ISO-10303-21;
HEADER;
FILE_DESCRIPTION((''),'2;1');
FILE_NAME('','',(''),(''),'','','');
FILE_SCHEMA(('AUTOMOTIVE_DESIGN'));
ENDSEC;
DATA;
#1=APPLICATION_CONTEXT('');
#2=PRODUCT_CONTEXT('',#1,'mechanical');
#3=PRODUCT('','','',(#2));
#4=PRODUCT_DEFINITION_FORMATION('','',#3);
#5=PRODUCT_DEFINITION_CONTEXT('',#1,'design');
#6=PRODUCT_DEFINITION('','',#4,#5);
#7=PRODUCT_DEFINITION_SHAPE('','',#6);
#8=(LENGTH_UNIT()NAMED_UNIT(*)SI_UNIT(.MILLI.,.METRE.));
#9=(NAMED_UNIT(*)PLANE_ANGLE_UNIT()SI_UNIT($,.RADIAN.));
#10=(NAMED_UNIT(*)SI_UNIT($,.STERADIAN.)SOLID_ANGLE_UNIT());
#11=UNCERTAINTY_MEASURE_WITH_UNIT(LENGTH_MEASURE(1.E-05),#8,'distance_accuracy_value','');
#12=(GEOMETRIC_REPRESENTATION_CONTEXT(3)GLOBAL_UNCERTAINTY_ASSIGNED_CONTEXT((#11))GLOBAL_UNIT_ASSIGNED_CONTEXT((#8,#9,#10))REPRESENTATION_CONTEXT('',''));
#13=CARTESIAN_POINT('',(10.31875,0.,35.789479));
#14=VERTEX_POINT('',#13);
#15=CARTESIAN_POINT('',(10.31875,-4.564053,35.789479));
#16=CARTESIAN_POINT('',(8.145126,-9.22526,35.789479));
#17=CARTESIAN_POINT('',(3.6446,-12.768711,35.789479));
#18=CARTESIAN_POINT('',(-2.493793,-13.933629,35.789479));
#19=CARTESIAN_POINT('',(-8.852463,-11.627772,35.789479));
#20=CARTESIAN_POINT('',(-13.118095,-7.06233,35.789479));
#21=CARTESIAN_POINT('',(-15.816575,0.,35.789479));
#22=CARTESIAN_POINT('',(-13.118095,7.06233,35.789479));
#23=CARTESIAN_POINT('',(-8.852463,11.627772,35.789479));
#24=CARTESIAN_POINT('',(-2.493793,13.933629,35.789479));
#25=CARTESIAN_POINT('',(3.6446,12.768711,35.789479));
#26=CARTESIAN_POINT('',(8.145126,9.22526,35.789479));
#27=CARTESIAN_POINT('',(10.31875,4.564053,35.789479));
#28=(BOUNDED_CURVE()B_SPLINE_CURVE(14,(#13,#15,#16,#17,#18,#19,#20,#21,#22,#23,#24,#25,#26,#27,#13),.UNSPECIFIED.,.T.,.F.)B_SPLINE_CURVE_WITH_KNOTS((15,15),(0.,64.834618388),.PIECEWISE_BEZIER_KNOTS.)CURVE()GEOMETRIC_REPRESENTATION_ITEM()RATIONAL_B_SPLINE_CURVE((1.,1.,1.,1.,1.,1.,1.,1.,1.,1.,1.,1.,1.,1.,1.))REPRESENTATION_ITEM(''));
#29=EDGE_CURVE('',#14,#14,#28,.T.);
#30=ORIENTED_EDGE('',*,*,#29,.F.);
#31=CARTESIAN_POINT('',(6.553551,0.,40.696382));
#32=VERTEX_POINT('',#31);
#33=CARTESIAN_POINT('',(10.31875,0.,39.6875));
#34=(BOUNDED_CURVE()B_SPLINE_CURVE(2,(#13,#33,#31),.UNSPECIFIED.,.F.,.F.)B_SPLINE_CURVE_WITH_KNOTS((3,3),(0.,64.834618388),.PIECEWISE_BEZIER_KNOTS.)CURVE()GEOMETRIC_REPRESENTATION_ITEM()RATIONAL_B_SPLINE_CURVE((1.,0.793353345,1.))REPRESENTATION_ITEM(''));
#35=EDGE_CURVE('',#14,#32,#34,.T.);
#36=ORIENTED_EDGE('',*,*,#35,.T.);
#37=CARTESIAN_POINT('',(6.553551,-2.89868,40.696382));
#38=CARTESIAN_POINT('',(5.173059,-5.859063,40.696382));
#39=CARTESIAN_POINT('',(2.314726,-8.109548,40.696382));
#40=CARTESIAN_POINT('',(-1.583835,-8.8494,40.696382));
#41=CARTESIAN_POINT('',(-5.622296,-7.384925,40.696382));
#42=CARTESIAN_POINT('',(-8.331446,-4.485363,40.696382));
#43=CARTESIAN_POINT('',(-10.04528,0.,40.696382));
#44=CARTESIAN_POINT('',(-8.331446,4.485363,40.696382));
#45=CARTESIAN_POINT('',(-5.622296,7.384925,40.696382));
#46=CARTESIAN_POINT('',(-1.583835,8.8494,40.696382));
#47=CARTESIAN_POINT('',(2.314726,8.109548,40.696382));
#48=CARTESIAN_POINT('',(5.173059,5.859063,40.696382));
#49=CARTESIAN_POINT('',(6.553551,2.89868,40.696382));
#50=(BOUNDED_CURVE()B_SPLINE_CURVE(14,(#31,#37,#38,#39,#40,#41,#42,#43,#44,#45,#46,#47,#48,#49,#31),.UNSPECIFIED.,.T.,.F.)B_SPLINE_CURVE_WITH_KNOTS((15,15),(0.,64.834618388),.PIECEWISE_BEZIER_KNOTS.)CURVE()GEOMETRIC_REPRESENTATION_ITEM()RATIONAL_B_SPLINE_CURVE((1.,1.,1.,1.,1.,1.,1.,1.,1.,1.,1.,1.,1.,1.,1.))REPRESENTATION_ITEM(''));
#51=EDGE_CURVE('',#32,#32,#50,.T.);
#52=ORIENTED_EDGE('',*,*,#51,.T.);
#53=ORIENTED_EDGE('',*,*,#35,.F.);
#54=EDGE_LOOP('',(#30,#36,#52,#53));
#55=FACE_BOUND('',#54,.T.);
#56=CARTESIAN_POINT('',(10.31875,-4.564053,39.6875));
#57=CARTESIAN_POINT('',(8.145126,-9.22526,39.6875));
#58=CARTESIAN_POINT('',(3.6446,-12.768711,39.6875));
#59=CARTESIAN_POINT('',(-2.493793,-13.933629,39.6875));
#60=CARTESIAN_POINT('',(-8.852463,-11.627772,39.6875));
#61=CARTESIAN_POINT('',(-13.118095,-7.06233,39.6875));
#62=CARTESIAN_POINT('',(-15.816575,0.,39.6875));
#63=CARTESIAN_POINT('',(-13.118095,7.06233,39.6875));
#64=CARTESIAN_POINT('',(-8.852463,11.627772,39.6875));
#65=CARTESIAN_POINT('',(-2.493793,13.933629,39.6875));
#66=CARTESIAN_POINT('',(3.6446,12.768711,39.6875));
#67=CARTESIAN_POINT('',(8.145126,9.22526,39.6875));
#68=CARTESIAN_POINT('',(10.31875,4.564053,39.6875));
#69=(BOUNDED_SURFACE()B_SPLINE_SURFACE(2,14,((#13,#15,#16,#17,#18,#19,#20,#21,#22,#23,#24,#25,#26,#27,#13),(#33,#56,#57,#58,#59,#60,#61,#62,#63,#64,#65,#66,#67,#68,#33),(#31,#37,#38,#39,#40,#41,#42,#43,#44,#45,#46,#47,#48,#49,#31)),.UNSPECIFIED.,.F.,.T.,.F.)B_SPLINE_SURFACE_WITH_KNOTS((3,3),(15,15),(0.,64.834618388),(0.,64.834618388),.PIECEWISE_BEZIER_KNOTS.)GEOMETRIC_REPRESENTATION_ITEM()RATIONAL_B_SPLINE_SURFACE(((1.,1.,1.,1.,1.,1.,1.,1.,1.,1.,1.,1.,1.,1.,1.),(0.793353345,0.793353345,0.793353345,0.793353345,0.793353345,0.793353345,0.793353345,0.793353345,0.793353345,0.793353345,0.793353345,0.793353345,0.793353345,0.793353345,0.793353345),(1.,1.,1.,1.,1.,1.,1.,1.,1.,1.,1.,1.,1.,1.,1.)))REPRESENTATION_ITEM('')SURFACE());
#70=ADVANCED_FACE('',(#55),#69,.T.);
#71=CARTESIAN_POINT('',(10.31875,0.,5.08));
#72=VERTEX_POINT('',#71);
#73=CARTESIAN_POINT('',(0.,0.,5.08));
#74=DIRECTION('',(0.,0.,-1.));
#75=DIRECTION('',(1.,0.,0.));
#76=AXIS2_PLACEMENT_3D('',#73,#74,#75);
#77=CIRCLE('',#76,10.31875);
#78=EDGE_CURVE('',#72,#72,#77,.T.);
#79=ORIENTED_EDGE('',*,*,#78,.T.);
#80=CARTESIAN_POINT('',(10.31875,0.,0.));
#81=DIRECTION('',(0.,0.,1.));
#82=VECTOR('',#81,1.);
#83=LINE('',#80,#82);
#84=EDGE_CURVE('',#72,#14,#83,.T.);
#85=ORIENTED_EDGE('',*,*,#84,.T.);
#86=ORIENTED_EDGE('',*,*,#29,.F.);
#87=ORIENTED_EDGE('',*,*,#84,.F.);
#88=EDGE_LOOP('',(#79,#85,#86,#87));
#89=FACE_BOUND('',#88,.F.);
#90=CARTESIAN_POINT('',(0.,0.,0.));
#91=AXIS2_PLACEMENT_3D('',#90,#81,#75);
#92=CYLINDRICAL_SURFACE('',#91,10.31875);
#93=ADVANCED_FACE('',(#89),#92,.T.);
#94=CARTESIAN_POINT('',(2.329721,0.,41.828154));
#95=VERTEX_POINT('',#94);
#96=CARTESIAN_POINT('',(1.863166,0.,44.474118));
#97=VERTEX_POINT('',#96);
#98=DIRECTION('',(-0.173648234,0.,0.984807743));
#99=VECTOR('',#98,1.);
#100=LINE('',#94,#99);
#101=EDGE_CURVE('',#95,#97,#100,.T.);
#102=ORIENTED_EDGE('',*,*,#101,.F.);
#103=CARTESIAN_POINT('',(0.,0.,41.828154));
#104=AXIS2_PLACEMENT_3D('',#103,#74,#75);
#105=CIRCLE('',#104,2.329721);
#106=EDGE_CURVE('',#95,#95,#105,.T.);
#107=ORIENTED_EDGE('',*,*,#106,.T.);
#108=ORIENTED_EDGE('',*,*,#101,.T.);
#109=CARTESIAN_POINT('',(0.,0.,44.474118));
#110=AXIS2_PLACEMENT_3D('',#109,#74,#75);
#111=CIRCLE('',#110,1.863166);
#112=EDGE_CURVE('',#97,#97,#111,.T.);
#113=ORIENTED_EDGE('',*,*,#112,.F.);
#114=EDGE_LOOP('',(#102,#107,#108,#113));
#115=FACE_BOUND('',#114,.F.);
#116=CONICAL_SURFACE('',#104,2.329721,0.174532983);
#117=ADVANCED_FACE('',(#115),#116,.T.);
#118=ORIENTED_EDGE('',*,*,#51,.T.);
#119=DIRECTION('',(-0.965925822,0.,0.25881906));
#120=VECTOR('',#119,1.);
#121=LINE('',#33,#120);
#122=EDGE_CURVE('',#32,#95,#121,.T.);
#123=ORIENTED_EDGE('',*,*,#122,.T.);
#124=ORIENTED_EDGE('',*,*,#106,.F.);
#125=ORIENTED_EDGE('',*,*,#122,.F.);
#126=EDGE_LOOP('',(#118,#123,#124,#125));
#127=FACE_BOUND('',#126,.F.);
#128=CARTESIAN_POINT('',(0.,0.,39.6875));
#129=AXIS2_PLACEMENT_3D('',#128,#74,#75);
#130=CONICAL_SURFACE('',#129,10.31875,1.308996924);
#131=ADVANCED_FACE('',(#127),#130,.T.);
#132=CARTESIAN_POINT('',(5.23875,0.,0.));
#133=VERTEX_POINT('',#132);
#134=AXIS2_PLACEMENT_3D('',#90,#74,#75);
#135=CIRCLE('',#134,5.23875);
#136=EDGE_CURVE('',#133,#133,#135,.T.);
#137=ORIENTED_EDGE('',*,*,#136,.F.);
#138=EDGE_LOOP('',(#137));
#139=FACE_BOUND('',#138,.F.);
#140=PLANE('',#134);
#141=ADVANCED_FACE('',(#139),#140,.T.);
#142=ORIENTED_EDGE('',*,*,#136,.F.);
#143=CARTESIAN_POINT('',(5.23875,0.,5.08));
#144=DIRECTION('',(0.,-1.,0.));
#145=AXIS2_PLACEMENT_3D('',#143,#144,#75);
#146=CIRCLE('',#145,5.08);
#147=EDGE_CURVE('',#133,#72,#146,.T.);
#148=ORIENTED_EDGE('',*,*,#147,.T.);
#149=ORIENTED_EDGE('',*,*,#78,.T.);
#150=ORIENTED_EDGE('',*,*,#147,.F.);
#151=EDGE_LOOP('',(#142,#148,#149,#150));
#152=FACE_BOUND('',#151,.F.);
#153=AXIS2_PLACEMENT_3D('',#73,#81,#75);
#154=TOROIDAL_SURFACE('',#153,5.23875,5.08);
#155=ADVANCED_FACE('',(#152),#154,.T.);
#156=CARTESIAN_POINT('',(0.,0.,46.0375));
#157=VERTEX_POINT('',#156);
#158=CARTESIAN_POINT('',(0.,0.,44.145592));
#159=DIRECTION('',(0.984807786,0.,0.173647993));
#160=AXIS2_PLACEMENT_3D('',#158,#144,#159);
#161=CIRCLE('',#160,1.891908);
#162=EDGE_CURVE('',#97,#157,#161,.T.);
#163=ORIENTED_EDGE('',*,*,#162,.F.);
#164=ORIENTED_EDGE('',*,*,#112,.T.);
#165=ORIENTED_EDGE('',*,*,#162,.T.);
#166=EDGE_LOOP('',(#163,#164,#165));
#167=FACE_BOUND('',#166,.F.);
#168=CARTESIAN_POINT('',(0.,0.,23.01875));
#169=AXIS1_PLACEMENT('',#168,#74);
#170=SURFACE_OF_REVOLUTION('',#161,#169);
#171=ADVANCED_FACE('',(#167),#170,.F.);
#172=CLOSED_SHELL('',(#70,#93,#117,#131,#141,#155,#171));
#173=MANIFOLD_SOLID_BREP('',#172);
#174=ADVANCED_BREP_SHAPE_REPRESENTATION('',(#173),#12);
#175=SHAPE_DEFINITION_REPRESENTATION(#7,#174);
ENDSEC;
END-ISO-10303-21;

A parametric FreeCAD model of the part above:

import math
import FreeCAD as App
import Part
import Sketcher

V = App.Vector
Q = App.Units.Quantity


def edges_at(feature, points):
    """Names of the edges that pass closest to the given points."""
    edges = feature.Shape.Edges
    near = lambda p: min(range(len(edges)), key=lambda i: edges[i].distToShape(Part.Vertex(*p))[0])
    return sorted({f"Edge{near(p) + 1}" for p in points})

doc = App.newDocument("Part")
body = doc.addObject("PartDesign::Body", "Body")

sketch1 = doc.addObject("Sketcher::SketchObject", "Sketch")
body.addObject(sketch1)
sketch1.AttachmentSupport = (doc.XZ_Plane, [""])
sketch1.MapMode = "FlatFace"
sketch1.addGeometry([
    Part.LineSegment(V(0, 0, 0), V(10.3, 0, 0)),
    Part.LineSegment(V(10.3, 0, 0), V(10.3, 39.7, 0)),
    Part.LineSegment(V(10.3, 39.7, 0), V(2.3, 41.8, 0)),
    Part.LineSegment(V(2.3, 41.8, 0), V(1.9, 44.5, 0)),
    Part.ArcOfCircle(Part.Circle(V(0, 44.1, 0), V(0, 0, 1), 1.9), math.radians(10), math.radians(90)),
    Part.LineSegment(V(0, 46, 0), V(0, 0, 0)),
], False)
sketch1.addConstraint([
    Sketcher.Constraint("Coincident", 0, 2, 1, 1),
    Sketcher.Constraint("Coincident", 1, 2, 2, 1),
    Sketcher.Constraint("Coincident", 2, 2, 3, 1),
    Sketcher.Constraint("Tangent", 3, 2, 4, 1),
    Sketcher.Constraint("Coincident", 4, 2, 5, 1),
    Sketcher.Constraint("Coincident", 5, 2, 0, 1),
    Sketcher.Constraint("Horizontal", 0),
    Sketcher.Constraint("Vertical", 1),
    Sketcher.Constraint("Vertical", 5),
    Sketcher.Constraint("Coincident", 5, 2, -1, 1),
    Sketcher.Constraint("PointOnObject", 4, 3, -2),
    Sketcher.Constraint("Angle", 2, Q("164.999999 deg")),
    Sketcher.Constraint("Angle", 3, Q("100.000003 deg")),
    Sketcher.Constraint("DistanceX", 0, 1, 0, 2, Q("0.40625 in")),
    Sketcher.Constraint("DistanceY", 1, 1, 1, 2, Q("1.5625 in")),
    Sketcher.Constraint("DistanceY", 5, 2, 5, 1, Q("1.8125 in")),
    Sketcher.Constraint("Radius", 4, 1.891908),
])
revolution = doc.addObject("PartDesign::Revolution", "Revolution")
body.addObject(revolution)
revolution.Profile = sketch1
revolution.ReferenceAxis = (sketch1, ["V_Axis"])
revolution.Angle = 360
doc.recompute()

fillet = doc.addObject("PartDesign::Fillet", "Fillet")
body.addObject(fillet)
fillet.Base = (revolution, edges_at(revolution, [(-10.319, 0, 39.688), (-10.319, 0, 0)]))
fillet.Radius = Q("0.2 in")

doc.recompute()
